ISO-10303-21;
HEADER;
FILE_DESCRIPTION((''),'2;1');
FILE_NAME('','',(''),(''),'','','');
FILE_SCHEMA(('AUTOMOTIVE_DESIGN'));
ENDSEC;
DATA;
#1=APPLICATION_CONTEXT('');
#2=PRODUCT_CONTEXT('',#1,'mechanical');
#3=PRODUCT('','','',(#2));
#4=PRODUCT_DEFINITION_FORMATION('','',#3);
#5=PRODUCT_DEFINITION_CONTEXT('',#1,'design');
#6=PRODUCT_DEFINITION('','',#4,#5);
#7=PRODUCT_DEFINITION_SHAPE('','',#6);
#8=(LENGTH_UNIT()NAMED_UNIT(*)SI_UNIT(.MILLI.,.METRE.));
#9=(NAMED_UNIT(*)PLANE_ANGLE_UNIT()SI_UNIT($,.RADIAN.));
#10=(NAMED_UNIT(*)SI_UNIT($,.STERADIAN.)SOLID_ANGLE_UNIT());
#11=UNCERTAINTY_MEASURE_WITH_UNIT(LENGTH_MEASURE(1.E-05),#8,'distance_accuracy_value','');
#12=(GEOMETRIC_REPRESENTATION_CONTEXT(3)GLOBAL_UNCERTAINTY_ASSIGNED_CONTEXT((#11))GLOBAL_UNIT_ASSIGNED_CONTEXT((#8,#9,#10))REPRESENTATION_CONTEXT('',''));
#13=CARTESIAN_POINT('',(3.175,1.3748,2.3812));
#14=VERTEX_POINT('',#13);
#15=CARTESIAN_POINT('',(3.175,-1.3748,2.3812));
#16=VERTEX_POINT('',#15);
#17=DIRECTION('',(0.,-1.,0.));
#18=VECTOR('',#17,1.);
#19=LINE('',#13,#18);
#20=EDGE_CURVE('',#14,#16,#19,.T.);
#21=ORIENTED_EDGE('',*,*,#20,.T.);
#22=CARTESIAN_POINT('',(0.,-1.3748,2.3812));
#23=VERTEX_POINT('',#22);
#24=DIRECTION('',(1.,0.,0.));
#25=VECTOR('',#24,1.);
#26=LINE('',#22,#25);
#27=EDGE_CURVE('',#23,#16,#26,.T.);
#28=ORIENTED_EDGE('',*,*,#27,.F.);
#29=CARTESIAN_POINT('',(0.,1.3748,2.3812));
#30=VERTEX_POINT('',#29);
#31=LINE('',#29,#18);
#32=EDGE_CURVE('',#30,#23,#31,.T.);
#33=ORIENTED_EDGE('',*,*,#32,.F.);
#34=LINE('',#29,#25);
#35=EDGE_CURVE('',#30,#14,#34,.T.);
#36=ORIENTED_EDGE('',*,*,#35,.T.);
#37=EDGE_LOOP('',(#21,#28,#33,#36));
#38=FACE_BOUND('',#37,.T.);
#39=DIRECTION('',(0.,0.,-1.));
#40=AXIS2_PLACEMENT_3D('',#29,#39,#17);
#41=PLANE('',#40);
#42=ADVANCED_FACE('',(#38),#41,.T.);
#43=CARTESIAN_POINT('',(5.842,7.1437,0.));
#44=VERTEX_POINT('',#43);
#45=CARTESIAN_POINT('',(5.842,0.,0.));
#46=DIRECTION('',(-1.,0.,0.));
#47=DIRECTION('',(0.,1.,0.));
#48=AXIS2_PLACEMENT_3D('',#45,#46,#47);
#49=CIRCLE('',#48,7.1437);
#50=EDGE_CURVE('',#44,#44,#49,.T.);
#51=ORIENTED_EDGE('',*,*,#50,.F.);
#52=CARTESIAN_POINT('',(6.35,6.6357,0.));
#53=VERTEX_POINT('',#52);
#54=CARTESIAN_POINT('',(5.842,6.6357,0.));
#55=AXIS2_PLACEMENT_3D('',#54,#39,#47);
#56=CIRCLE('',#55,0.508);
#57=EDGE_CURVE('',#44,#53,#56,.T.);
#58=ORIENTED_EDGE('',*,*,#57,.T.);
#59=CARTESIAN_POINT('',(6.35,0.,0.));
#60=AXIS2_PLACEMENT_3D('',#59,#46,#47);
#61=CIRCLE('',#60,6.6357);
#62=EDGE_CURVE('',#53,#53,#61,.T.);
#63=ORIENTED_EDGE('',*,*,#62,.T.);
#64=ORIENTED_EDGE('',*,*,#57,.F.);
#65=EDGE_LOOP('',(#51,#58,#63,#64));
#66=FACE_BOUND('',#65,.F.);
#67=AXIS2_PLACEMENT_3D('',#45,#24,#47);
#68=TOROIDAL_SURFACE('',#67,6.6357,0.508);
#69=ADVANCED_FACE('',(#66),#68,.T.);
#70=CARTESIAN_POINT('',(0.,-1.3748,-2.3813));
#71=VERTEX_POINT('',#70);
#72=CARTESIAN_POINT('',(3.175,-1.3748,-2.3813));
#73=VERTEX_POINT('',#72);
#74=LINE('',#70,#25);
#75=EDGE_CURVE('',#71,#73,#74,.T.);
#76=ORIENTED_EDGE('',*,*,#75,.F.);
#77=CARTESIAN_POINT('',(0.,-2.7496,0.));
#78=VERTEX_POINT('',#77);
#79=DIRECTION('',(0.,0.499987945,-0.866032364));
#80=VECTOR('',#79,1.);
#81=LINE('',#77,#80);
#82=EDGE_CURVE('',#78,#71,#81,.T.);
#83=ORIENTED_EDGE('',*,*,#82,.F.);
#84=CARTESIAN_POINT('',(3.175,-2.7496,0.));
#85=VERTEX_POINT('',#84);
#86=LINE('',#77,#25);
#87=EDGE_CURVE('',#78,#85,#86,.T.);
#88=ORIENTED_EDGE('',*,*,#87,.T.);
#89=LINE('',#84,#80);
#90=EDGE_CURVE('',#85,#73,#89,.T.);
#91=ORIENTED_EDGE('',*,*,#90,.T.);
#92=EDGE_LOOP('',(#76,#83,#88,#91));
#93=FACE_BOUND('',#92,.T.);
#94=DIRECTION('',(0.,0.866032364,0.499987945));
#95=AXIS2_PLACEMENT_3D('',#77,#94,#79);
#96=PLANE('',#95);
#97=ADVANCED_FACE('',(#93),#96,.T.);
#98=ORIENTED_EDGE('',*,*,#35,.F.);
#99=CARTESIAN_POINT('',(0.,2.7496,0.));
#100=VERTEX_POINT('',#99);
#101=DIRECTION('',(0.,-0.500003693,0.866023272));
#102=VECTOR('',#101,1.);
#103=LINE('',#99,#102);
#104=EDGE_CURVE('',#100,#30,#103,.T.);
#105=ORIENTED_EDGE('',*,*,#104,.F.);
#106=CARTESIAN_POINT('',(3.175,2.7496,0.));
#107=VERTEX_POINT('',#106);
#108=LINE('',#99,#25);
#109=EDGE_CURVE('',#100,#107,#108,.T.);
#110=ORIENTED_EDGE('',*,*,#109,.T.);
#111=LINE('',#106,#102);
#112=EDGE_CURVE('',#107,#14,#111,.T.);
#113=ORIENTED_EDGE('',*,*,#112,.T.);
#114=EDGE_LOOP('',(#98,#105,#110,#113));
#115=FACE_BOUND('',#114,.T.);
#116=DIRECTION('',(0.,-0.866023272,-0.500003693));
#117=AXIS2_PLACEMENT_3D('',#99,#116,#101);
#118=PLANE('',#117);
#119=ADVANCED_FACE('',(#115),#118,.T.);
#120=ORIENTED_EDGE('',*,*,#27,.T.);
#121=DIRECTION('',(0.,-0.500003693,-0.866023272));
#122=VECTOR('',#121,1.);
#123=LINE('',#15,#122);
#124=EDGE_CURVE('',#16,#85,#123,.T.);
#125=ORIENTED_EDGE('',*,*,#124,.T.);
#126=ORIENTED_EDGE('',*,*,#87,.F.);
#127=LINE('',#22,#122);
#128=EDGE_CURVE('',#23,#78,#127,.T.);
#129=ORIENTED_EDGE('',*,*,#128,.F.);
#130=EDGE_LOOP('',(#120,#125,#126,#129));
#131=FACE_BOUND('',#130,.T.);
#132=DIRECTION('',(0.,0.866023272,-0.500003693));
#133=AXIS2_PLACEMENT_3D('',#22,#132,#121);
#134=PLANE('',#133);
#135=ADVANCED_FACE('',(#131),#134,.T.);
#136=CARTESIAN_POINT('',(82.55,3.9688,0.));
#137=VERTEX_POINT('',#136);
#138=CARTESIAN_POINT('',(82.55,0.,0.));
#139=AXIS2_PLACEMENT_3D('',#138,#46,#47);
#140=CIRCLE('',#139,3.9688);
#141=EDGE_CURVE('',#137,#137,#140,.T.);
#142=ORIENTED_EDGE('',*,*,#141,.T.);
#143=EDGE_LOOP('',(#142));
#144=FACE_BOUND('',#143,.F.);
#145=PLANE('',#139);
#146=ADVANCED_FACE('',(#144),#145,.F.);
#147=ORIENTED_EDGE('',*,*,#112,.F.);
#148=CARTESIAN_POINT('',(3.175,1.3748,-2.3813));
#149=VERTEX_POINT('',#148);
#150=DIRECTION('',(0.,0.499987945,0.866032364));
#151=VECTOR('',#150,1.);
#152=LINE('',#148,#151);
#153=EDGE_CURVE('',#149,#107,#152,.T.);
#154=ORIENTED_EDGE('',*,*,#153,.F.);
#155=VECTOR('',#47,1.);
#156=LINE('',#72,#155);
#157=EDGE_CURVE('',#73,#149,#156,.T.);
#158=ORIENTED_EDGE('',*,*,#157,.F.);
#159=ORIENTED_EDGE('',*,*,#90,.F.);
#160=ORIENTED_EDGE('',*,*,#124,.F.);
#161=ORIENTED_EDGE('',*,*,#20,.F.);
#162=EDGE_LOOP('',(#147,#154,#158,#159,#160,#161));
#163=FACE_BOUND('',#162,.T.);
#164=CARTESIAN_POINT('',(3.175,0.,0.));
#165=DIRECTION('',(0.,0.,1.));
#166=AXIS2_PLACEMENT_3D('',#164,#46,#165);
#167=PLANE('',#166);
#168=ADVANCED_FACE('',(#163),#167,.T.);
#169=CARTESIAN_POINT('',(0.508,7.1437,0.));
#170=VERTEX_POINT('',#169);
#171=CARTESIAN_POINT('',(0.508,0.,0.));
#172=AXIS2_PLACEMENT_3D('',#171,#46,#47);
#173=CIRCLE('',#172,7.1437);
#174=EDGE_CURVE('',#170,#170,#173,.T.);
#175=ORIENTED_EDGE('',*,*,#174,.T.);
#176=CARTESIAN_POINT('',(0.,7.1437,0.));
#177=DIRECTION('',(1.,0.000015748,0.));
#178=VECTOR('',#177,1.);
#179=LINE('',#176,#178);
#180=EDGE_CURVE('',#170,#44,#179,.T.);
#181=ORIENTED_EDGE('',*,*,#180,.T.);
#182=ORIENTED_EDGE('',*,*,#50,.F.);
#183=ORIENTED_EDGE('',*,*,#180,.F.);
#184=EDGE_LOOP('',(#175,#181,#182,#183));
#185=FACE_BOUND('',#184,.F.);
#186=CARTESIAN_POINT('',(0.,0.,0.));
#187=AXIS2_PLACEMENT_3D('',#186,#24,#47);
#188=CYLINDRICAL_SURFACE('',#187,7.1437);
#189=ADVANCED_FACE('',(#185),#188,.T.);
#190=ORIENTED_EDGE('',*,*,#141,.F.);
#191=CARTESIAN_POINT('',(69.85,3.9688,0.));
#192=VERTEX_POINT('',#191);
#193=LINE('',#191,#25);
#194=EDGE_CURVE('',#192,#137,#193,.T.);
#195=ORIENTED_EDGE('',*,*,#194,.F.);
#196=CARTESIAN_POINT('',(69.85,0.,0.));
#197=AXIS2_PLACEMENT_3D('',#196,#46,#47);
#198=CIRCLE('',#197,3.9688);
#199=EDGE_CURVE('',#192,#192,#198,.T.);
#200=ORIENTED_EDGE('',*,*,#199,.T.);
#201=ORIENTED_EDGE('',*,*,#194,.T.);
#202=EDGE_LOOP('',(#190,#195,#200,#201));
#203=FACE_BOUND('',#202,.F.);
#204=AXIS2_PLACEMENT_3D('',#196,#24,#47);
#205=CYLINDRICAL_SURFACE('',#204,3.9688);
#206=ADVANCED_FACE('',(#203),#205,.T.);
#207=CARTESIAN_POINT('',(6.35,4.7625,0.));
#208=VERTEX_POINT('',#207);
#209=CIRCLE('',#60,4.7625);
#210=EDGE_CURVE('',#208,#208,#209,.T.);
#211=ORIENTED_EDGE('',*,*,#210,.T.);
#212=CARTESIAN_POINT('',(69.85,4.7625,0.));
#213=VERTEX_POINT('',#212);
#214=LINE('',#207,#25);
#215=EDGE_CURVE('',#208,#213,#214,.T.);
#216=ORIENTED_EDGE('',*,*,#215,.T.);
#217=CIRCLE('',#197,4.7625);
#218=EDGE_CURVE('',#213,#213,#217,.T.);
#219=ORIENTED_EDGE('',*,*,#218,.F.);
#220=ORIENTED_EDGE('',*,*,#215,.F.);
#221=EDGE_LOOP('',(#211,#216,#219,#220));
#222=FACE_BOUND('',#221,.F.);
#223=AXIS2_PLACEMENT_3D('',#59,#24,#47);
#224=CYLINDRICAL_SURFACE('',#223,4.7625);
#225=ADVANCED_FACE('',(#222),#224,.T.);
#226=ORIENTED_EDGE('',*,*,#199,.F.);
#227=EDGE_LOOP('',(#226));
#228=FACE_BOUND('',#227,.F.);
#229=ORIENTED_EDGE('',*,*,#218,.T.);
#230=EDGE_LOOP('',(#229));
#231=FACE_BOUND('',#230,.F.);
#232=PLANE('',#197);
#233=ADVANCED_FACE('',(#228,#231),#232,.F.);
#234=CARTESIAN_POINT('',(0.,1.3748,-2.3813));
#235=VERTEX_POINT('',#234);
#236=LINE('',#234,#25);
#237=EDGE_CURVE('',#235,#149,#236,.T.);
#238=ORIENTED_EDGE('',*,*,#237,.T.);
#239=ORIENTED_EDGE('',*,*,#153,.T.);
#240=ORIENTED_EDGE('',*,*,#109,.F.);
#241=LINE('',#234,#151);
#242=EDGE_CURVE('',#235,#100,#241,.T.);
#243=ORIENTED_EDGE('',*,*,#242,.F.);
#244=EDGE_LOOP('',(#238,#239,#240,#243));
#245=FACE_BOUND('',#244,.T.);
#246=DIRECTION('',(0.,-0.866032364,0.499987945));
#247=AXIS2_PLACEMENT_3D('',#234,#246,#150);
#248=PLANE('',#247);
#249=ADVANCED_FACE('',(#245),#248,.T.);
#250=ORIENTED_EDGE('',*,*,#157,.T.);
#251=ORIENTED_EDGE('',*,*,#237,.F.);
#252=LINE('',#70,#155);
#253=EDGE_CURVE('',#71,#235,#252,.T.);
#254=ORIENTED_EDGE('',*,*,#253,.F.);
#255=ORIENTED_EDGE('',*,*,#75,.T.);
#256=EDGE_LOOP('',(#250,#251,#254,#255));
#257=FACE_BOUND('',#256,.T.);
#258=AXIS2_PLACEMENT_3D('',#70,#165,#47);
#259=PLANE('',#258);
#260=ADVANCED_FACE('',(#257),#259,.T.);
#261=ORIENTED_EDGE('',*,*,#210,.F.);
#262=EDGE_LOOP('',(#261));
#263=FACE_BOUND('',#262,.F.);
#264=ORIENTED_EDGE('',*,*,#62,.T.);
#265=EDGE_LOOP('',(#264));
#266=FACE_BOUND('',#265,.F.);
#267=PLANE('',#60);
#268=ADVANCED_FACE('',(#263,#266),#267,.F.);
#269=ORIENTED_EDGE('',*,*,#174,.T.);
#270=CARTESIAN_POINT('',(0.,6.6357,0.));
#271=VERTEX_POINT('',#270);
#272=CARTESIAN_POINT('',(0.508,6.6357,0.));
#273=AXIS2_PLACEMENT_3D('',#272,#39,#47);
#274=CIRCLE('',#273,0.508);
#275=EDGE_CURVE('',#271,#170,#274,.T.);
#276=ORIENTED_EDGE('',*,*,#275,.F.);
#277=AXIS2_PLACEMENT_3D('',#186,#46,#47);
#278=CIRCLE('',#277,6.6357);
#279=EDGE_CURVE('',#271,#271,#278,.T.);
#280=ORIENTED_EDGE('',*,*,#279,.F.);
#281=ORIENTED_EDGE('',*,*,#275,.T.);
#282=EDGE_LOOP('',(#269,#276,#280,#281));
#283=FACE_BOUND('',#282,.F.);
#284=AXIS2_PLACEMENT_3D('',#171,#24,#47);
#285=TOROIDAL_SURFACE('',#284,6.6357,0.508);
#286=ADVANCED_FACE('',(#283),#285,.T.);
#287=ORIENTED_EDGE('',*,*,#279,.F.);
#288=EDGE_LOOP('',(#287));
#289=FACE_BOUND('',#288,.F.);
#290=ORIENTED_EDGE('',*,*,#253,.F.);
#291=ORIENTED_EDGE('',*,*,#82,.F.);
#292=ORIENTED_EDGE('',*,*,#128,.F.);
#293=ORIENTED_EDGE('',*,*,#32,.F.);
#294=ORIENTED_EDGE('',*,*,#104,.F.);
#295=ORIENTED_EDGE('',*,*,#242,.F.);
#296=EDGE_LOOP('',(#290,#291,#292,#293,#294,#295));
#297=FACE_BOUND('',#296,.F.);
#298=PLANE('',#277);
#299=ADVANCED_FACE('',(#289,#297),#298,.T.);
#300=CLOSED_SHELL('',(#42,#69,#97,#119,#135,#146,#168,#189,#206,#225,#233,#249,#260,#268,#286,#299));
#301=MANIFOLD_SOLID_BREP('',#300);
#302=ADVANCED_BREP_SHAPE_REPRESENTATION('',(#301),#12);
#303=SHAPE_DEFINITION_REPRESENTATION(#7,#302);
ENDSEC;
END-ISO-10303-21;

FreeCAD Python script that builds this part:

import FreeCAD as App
import Part
import Sketcher
Q = App.Units.Quantity


def edges_at(feature, points):
    """Names of the edges that pass closest to the given points."""
    edges = feature.Shape.Edges
    near = lambda p: min(range(len(edges)), key=lambda i: edges[i].distToShape(Part.Vertex(*p))[0])
    return sorted({f"Edge{near(p) + 1}" for p in points})


def add_polygon(sketch, points):
    """Adds a closed chain of lines whose ends are joined by coincident constraints."""
    first, n = sketch.GeometryCount, len(points)
    for a, b in zip(points, points[1:] + points[:1]):
        sketch.addGeometry(Part.LineSegment(App.Vector(*a, 0), App.Vector(*b, 0)), False)
    for i in range(n):
        sketch.addConstraint(Sketcher.Constraint("Coincident", first + i, 2, first + (i + 1) % n, 1))

doc = App.newDocument("Part")
body = doc.addObject("PartDesign::Body", "Body")

# Sketch on XY plane
sketch1 = body.newObject("Sketcher::SketchObject", "Sketch")
sketch1.AttachmentSupport = (doc.getObject("XY_Plane"), [""])
sketch1.MapMode = "FlatFace"
add_polygon(sketch1, [(0, 7.1437), (0, 0), (82.55, 0), (82.55, 3.9688), (69.85, 3.9688), (69.85, 4.7625), (6.35, 4.7625), (6.35, 7.1438)])  # lines 0-7
sketch1.addConstraint([
    Sketcher.Constraint("Vertical", 0),
    Sketcher.Constraint("Horizontal", 1),
    Sketcher.Constraint("Vertical", 2),
    Sketcher.Constraint("Horizontal", 3),
    Sketcher.Constraint("Vertical", 4),
    Sketcher.Constraint("Horizontal", 5),
    Sketcher.Constraint("Vertical", 6),
    Sketcher.Constraint("Horizontal", 7),
    Sketcher.Constraint("Coincident", 0, 2, -1, 1),
    Sketcher.Constraint("DistanceX", 3, 2, 3, 1, Q("0.5 in")),
    Sketcher.Constraint("DistanceX", 5, 2, 5, 1, Q("2.5 in")),
    Sketcher.Constraint("DistanceX", 7, 2, 7, 1, Q("0.25 in")),
    Sketcher.Constraint("DistanceY", 0, 2, 0, 1, Q("0.281248 in")),
    Sketcher.Constraint("DistanceY", 2, 1, 2, 2, Q("0.156252 in")),
    Sketcher.Constraint("DistanceY", -1, 1, 4, 2, Q("0.1875 in")),
])
revolution = body.newObject("PartDesign::Revolution", "Revolution")
revolution.Profile = sketch1
revolution.ReferenceAxis = (sketch1, ["H_Axis"])
revolution.Angle = 360
doc.recompute()

fillet = body.newObject("PartDesign::Fillet", "Fillet")
fillet.Base = (revolution, edges_at(revolution, [(0, -7.144, 0), (6.35, -7.144, 0)]))
fillet.Radius = Q("0.02 in")

# Sketch on YZ plane
sketch2 = body.newObject("Sketcher::SketchObject", "Sketch001")
sketch2.AttachmentSupport = (doc.getObject("YZ_Plane"), [""])
sketch2.MapMode = "FlatFace"
add_polygon(sketch2, [(1.3748, 2.3812), (2.7496, 0), (1.3748, -2.3813), (-1.3748, -2.3813), (-2.7496, 0), (-1.3748, 2.3812)])  # lines 0-5
sketch2.addConstraint([
    Sketcher.Constraint("Horizontal", 2),
    Sketcher.Constraint("Horizontal", 5),
    Sketcher.Constraint("Symmetric", 0, 2, 3, 2, -1, 1),
    Sketcher.Constraint("Symmetric", 1, 2, 4, 2, -1, 1),
    Sketcher.Constraint("PointOnObject", 0, 2, -1),
    Sketcher.Constraint("Parallel", 0, 3),
    Sketcher.Constraint("Vertical", 2, 2, 4, 2),
    Sketcher.Constraint("Angle", 0, Q("-59.9998 deg")),
    Sketcher.Constraint("DistanceY", 2, 2, 4, 2, Q("0.1875 in")),
    Sketcher.Constraint("DistanceX", 2, 2, 2, 1, Q("2.7496 mm")),
])
pocket1 = body.newObject("PartDesign::Pocket", "Pocket")
pocket1.Profile = sketch2
pocket1.Length = Q("0.125 in")
pocket1.Reversed = True

doc.recompute()
